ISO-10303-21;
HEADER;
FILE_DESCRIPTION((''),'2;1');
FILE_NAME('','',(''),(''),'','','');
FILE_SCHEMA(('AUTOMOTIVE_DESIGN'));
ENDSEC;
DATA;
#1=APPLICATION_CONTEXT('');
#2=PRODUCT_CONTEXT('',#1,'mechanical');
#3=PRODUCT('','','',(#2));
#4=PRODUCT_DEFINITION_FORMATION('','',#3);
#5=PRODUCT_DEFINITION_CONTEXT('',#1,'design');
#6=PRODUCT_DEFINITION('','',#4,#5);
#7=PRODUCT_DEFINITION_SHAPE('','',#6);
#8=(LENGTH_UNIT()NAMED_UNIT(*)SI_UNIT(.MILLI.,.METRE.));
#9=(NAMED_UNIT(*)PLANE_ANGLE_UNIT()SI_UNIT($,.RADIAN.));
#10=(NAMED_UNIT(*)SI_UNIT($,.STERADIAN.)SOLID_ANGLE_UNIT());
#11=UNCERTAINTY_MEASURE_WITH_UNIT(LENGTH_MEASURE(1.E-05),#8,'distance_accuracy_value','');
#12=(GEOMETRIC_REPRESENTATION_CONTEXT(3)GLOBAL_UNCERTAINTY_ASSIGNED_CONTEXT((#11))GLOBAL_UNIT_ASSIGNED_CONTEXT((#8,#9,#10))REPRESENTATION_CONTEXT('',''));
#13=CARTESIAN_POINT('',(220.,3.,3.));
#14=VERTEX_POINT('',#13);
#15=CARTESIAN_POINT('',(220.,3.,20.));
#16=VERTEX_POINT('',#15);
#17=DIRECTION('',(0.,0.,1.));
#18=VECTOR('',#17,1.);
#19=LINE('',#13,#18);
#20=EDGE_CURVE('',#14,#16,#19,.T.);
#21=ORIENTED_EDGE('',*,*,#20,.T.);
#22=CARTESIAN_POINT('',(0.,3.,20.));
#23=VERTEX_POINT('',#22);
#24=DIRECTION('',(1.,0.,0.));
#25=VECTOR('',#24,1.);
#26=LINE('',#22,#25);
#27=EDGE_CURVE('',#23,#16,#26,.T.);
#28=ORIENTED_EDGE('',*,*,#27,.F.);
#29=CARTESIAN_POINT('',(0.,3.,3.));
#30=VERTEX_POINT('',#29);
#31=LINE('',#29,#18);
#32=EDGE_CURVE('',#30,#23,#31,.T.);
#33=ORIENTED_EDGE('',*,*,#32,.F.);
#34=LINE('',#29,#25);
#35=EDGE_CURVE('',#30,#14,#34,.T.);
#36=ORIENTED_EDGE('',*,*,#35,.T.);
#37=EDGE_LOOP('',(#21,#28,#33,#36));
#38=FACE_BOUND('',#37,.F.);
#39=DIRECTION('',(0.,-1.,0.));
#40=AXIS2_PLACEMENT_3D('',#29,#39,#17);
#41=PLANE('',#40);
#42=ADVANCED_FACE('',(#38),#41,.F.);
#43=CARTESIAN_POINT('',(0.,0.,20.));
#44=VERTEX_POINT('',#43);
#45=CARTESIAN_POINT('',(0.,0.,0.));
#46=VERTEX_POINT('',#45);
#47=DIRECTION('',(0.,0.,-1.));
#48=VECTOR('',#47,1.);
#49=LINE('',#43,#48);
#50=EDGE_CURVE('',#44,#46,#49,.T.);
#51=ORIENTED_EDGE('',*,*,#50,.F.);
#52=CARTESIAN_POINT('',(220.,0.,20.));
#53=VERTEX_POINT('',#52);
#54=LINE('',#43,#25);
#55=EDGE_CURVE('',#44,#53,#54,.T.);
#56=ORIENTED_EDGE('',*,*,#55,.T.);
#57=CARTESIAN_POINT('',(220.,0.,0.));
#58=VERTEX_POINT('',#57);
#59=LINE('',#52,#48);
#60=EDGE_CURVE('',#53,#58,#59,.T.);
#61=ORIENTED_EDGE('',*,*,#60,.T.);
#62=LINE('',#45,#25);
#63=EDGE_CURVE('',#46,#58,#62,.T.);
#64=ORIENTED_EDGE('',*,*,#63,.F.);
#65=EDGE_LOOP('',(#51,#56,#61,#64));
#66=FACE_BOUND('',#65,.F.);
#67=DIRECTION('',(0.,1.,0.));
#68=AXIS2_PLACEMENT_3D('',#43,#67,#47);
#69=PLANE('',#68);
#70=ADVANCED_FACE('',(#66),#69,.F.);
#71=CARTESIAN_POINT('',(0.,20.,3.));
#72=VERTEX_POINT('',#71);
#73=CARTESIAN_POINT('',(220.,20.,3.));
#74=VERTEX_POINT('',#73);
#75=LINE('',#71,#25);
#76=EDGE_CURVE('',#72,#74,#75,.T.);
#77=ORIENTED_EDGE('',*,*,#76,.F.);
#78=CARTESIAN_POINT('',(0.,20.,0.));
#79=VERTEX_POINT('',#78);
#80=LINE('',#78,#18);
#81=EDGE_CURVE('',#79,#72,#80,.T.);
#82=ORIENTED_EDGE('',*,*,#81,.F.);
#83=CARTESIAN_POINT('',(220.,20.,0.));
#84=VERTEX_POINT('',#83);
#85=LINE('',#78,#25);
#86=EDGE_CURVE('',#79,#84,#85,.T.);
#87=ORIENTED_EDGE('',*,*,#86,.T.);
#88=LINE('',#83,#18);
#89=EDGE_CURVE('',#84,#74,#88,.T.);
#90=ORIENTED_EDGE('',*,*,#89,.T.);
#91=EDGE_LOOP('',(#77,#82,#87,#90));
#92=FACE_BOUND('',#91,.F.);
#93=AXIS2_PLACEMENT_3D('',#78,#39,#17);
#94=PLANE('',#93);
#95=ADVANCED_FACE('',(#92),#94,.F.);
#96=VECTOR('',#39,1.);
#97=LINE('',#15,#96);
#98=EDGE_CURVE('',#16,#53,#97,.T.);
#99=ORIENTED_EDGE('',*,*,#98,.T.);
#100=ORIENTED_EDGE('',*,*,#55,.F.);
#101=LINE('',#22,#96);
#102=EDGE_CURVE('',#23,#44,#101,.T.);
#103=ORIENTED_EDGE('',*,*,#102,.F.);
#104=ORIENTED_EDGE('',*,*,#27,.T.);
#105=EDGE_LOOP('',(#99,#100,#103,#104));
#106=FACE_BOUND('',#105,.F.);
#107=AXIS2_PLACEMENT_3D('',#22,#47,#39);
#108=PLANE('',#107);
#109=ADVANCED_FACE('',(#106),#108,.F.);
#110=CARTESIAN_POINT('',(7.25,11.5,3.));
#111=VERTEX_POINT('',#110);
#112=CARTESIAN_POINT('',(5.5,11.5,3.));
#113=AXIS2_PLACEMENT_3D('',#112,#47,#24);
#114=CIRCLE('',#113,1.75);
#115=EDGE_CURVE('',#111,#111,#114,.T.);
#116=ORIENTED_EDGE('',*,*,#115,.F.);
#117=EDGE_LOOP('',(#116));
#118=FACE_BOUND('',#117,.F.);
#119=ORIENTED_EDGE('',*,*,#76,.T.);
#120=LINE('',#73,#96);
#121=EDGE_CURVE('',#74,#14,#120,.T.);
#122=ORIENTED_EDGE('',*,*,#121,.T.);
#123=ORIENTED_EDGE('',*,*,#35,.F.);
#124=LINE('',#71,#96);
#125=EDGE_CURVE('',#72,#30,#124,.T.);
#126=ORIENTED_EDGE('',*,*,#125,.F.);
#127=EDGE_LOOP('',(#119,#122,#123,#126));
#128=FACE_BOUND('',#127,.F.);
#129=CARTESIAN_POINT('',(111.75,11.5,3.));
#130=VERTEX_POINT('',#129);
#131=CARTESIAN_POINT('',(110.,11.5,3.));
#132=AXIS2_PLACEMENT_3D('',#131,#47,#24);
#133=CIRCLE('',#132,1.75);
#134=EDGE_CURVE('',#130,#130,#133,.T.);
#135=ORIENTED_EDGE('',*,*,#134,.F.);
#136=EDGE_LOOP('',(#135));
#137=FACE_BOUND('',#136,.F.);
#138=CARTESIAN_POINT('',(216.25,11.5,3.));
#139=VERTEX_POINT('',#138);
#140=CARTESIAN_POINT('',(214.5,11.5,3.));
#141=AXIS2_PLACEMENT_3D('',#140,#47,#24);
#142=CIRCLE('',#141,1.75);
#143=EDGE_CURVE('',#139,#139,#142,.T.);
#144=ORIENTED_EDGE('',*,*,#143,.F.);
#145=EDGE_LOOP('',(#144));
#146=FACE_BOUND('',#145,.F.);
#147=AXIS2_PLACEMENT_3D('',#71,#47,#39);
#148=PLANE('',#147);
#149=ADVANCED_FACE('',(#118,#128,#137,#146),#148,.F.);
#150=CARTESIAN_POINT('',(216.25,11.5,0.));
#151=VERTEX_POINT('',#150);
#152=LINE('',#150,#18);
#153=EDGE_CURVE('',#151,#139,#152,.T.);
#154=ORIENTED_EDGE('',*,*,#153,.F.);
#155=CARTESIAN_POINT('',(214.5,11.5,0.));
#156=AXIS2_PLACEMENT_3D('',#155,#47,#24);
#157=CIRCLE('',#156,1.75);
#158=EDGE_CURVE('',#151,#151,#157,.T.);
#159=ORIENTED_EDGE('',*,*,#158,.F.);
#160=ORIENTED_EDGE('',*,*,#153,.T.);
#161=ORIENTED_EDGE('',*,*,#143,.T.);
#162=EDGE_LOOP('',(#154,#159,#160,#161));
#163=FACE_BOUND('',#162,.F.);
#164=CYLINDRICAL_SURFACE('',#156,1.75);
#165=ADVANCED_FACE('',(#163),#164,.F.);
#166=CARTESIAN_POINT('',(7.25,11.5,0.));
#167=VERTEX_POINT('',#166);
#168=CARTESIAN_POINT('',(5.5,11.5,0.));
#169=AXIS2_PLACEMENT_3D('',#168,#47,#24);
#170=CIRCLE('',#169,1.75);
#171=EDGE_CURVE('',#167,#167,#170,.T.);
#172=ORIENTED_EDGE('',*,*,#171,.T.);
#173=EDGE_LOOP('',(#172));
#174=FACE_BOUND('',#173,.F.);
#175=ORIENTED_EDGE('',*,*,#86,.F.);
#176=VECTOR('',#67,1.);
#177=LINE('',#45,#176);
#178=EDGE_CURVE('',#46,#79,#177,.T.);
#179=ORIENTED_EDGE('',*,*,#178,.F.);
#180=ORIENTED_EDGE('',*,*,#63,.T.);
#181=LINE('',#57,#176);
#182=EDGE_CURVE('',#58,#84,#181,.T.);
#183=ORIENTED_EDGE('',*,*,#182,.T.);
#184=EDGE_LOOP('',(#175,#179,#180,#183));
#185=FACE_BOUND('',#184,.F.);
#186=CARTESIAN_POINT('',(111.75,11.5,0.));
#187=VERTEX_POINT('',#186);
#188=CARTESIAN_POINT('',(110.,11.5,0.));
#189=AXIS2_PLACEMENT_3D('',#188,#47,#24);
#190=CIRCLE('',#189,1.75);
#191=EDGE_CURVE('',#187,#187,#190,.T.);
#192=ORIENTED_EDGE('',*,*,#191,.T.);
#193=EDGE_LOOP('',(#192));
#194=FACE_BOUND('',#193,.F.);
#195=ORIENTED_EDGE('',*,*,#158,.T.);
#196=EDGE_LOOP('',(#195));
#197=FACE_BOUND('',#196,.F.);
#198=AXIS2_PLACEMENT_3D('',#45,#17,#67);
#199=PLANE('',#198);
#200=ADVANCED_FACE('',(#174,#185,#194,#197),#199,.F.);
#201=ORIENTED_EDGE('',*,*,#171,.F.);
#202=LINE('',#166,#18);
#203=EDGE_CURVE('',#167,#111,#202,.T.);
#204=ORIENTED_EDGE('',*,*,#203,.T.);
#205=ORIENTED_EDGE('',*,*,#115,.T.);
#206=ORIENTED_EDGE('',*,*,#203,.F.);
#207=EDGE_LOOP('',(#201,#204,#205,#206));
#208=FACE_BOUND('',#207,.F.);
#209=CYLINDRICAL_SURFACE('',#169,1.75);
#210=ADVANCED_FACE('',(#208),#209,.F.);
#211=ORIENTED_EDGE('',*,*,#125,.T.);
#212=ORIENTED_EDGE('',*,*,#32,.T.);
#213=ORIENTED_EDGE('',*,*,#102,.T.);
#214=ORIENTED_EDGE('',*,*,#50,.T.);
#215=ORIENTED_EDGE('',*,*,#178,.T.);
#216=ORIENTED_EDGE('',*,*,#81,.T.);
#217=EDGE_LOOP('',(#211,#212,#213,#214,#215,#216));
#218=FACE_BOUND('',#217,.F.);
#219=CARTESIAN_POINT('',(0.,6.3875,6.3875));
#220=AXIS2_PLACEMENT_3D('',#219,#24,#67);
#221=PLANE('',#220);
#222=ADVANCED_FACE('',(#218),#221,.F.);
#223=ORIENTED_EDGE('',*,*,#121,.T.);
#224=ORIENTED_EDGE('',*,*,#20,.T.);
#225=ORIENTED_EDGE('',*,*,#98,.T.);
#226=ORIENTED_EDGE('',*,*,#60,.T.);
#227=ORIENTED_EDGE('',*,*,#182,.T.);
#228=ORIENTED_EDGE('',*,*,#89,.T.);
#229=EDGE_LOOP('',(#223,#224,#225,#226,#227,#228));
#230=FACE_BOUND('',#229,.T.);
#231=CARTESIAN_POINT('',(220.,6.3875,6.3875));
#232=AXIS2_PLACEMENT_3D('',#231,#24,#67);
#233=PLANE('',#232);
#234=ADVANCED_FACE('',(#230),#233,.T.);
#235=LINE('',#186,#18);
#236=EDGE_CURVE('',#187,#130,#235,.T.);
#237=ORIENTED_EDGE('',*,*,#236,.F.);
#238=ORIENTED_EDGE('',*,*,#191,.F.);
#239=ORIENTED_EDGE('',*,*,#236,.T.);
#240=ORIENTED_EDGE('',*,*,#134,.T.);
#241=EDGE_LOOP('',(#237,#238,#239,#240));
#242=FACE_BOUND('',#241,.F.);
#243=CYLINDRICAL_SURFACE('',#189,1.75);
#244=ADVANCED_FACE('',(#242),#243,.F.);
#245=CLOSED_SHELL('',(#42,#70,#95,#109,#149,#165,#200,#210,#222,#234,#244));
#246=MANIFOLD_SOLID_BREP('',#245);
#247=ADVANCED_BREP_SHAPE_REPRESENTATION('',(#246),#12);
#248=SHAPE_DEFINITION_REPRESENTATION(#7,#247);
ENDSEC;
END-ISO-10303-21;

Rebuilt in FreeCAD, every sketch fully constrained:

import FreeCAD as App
import Part
import Sketcher

V = App.Vector
Q = App.Units.Quantity


def add_polygon(sketch, points):
    """Adds a closed chain of lines whose ends are joined by coincident constraints."""
    first, n = sketch.GeometryCount, len(points)
    for a, b in zip(points, points[1:] + points[:1]):
        sketch.addGeometry(Part.LineSegment(App.Vector(*a, 0), App.Vector(*b, 0)), False)
    for i in range(n):
        sketch.addConstraint(Sketcher.Constraint("Coincident", first + i, 2, first + (i + 1) % n, 1))

doc = App.newDocument("Part")
body = doc.addObject("PartDesign::Body", "Body")

sketch1 = body.newObject("Sketcher::SketchObject", "Sketch")
sketch1.AttachmentSupport = (doc.getObject("YZ_Plane"), [""])
sketch1.MapMode = "FlatFace"
add_polygon(sketch1, [(0, 20), (0, 0), (20, 0), (20, 3), (3, 3), (3, 20)])
sketch1.addConstraint(Sketcher.Constraint("Vertical", 0))
sketch1.addConstraint(Sketcher.Constraint("Horizontal", 1))
sketch1.addConstraint(Sketcher.Constraint("Vertical", 2))
sketch1.addConstraint(Sketcher.Constraint("Horizontal", 3))
sketch1.addConstraint(Sketcher.Constraint("Vertical", 4))
sketch1.addConstraint(Sketcher.Constraint("Horizontal", 5))
sketch1.addConstraint(Sketcher.Constraint("Coincident", 0, 2, -1, 1))
sketch1.addConstraint(Sketcher.Constraint("Equal", 1, 0))
sketch1.addConstraint(Sketcher.Constraint("Equal", 5, 2))
sketch1.addConstraint(Sketcher.Constraint("DistanceX", 1, 1, 1, 2, Q("20 mm")))
sketch1.addConstraint(Sketcher.Constraint("DistanceX", 3, 2, 3, 1, Q("17 mm")))
pad1 = body.newObject("PartDesign::Pad", "Pad")
pad1.Profile = sketch1
pad1.Length = 220

sketch2 = body.newObject("Sketcher::SketchObject", "Sketch001")
sketch2.AttachmentSupport = (doc.getObject("XY_Plane"), [""])
sketch2.MapMode = "FlatFace"
sketch2.addGeometry(Part.Circle(V(5.5, 11.5, 0), V(0, 0, 1), 1.8), False)
sketch2.addGeometry(Part.Circle(V(110, 11.5, 0), V(0, 0, 1), 1.8), False)
sketch2.addGeometry(Part.Circle(V(214.5, 11.5, 0), V(0, 0, 1), 1.8), False)
sketch2.addConstraint(Sketcher.Constraint("Equal", 0, 1))
sketch2.addConstraint(Sketcher.Constraint("Equal", 1, 2))
sketch2.addConstraint(Sketcher.Constraint("Horizontal", 0, 3, 1, 3))
sketch2.addConstraint(Sketcher.Constraint("Horizontal", 1, 3, 2, 3))
sketch2.addConstraint(Sketcher.Constraint("Diameter", 0, Q("3.5 mm")))
sketch2.addConstraint(Sketcher.Constraint("DistanceX", -1, 1, 1, 3, Q("110 mm")))
sketch2.addConstraint(Sketcher.Constraint("DistanceX", 0, 3, 2, 3, Q("209 mm")))
sketch2.addConstraint(Sketcher.Constraint("DistanceX", -1, 1, 0, 3, Q("5.5 mm")))
sketch2.addConstraint(Sketcher.Constraint("DistanceY", -1, 1, 0, 3, Q("11.5 mm")))
pocket1 = body.newObject("PartDesign::Pocket", "Pocket")
pocket1.Profile = sketch2
pocket1.Length = 25
pocket1.Reversed = True

doc.recompute()
